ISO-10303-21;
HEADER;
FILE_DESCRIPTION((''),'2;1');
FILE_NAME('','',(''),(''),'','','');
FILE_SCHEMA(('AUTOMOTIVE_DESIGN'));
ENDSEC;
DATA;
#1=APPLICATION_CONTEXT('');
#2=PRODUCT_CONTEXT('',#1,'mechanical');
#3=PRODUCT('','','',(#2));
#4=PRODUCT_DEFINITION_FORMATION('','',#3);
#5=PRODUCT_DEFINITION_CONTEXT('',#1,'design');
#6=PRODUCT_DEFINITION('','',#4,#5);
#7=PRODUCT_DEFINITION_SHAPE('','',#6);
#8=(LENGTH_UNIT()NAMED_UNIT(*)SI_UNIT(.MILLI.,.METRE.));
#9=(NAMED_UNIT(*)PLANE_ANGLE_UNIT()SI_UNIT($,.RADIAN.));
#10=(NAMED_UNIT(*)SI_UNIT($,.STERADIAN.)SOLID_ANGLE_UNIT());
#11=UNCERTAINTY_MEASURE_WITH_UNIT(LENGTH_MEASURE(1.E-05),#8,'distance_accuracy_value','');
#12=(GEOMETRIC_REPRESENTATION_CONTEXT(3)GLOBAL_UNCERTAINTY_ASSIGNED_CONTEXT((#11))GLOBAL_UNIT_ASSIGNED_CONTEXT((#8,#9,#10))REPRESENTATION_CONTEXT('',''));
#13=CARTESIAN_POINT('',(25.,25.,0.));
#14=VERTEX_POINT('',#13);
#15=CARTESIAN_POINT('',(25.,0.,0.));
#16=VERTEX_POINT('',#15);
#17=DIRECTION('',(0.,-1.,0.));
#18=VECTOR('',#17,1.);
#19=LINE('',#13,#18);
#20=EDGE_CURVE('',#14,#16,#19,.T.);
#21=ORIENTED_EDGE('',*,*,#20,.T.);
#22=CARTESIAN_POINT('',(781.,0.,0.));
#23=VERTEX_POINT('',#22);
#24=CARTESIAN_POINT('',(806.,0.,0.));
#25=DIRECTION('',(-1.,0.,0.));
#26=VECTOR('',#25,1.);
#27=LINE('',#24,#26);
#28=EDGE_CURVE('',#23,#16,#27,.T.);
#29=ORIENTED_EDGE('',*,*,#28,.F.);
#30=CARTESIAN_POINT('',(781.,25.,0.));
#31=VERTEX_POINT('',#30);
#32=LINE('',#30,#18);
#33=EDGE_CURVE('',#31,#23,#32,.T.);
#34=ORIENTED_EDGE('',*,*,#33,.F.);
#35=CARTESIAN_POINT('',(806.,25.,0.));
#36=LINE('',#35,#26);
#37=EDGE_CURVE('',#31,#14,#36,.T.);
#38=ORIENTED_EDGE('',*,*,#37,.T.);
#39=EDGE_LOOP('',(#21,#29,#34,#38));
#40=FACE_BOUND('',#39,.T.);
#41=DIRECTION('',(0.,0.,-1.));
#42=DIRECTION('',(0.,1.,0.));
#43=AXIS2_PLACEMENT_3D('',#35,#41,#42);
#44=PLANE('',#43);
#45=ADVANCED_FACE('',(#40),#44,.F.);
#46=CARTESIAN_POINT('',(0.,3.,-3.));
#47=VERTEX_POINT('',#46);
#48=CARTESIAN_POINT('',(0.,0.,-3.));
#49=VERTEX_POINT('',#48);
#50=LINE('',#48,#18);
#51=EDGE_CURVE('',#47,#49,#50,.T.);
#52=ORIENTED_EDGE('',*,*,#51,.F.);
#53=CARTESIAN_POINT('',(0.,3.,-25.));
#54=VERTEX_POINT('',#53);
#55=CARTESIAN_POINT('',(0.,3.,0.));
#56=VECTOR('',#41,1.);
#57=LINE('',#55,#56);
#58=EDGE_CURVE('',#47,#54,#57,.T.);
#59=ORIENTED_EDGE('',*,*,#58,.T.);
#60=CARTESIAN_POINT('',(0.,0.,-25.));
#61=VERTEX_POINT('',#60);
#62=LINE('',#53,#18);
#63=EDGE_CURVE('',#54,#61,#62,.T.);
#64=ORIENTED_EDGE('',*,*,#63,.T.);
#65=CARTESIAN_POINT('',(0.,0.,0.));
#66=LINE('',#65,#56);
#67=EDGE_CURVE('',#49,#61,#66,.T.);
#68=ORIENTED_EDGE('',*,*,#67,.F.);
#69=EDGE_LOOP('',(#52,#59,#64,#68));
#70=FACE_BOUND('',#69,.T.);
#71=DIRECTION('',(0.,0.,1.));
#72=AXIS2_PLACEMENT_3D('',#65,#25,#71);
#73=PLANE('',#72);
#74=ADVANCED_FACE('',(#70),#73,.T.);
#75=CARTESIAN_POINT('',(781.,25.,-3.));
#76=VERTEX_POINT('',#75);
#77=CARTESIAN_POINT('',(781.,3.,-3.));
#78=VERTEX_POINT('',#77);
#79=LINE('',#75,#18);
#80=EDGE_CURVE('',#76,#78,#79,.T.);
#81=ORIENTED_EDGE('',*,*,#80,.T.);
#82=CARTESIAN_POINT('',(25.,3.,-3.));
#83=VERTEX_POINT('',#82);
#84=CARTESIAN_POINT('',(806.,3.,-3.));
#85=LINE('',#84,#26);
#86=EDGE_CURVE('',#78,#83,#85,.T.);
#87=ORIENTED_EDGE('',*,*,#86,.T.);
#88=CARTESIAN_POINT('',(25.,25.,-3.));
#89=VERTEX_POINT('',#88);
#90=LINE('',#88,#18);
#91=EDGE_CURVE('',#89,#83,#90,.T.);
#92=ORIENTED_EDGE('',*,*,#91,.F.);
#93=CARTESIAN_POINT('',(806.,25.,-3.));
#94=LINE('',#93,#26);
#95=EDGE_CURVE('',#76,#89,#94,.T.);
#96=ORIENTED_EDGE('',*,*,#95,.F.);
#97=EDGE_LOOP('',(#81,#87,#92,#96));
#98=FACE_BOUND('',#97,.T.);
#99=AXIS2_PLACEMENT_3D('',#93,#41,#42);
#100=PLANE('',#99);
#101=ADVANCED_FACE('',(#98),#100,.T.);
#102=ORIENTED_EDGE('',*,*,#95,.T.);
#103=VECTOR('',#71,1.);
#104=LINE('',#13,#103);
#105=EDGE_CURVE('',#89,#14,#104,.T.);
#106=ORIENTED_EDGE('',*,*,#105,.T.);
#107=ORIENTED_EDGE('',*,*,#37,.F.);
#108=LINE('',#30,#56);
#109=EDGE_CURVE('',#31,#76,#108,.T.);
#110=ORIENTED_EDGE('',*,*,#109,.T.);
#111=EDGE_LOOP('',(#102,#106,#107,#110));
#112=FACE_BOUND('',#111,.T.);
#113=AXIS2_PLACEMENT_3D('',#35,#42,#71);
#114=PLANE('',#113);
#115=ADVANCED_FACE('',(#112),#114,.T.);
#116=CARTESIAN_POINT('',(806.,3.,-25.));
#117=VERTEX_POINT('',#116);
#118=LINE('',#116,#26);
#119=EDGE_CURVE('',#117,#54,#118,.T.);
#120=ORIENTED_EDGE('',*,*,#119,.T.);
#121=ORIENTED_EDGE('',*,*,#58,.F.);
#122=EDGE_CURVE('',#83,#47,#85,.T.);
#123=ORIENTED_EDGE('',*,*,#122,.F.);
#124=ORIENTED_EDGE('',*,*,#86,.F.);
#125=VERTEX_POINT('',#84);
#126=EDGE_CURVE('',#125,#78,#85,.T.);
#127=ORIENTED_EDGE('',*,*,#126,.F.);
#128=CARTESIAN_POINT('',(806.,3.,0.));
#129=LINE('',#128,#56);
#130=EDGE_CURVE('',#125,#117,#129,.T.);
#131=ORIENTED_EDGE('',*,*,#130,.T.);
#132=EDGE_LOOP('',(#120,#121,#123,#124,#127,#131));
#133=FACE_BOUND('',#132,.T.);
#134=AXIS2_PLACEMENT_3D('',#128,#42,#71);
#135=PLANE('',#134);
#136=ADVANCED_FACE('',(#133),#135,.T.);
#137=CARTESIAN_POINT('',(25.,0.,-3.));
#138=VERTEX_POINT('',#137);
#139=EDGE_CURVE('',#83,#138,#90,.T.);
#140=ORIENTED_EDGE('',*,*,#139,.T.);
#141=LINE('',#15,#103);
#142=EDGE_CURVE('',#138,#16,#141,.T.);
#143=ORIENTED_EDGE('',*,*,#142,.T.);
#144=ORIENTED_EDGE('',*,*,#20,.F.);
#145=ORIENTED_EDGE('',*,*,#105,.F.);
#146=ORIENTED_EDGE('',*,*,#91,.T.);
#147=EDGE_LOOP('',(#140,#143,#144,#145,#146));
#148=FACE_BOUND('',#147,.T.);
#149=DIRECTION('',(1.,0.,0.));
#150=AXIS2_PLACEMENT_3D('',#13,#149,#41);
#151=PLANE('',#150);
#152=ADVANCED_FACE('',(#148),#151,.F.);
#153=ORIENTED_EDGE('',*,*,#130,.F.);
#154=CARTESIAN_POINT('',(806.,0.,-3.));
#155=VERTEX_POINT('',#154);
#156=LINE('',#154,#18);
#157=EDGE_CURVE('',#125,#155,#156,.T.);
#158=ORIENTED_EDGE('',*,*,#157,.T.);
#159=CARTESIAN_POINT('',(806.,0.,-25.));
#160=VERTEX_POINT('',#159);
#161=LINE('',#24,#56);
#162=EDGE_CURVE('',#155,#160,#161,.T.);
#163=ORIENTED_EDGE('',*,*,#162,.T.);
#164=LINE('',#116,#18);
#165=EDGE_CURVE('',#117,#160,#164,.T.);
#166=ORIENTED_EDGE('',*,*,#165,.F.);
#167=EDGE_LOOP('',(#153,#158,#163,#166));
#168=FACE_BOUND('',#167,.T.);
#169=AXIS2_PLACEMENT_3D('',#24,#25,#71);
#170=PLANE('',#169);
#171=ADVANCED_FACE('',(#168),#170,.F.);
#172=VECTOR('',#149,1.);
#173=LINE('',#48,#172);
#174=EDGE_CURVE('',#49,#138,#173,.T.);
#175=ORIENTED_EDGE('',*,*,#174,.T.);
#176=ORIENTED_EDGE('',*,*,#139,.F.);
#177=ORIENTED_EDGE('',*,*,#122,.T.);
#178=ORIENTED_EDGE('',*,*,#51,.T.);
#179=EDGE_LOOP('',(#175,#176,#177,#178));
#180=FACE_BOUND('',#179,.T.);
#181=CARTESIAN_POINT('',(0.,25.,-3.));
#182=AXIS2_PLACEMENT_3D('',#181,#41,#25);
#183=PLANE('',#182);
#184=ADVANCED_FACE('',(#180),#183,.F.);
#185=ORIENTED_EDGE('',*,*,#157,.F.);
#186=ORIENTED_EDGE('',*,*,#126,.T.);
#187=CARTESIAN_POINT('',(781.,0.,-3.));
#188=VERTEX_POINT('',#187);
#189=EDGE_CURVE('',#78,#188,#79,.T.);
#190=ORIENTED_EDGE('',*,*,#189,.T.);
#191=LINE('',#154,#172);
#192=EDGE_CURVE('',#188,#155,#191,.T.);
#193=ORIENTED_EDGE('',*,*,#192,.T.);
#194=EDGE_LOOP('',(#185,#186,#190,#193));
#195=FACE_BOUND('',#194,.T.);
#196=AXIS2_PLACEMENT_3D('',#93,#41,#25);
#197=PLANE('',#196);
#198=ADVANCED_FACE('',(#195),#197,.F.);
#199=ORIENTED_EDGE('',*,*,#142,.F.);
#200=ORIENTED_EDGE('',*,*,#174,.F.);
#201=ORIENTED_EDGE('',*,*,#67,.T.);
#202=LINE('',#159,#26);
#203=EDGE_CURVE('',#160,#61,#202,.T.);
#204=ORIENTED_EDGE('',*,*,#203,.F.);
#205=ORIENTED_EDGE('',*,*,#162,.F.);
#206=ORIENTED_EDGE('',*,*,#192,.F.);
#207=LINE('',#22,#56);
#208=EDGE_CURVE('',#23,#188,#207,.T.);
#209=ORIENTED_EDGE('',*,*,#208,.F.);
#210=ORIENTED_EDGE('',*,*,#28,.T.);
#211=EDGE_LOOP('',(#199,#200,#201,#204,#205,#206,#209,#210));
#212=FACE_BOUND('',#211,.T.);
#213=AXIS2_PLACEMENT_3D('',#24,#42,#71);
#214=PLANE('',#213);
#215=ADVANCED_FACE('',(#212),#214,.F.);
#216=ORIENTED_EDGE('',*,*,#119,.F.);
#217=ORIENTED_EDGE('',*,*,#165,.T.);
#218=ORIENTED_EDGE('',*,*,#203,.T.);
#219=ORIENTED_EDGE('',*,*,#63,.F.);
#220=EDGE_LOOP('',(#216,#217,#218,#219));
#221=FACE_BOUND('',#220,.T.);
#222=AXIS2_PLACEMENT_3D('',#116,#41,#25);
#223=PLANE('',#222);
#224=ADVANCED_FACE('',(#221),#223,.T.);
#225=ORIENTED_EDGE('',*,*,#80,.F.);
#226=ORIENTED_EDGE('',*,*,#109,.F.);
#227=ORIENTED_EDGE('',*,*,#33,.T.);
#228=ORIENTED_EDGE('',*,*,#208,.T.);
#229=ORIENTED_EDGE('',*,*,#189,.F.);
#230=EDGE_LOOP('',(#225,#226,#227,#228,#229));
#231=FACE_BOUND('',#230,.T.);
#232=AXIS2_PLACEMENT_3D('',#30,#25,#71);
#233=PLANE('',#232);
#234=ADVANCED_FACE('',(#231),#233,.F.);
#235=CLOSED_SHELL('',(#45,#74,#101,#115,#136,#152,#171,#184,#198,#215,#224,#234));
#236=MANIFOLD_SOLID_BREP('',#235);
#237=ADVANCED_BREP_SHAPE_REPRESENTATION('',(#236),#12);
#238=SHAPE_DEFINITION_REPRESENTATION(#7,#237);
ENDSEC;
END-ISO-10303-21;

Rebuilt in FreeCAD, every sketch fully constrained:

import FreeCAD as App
import Part
import Sketcher


def add_polygon(sketch, points):
    """Adds a closed chain of lines whose ends are joined by coincident constraints."""
    first, n = sketch.GeometryCount, len(points)
    for a, b in zip(points, points[1:] + points[:1]):
        sketch.addGeometry(Part.LineSegment(App.Vector(*a, 0), App.Vector(*b, 0)), False)
    for i in range(n):
        sketch.addConstraint(Sketcher.Constraint("Coincident", first + i, 2, first + (i + 1) % n, 1))

doc = App.newDocument("Part")
body = doc.addObject("PartDesign::Body", "Body")

sketch1 = doc.addObject("Sketcher::SketchObject", "Sketch")
body.addObject(sketch1)
sketch1.AttachmentSupport = (doc.YZ_Plane, [""])
sketch1.MapMode = "FlatFace"
add_polygon(sketch1, [(25, 0), (0, 0), (0, -25), (3, -25), (3, -3), (25, -3)])
sketch1.addConstraint(Sketcher.Constraint("Horizontal", 0))
sketch1.addConstraint(Sketcher.Constraint("Vertical", 1))
sketch1.addConstraint(Sketcher.Constraint("Horizontal", 2))
sketch1.addConstraint(Sketcher.Constraint("Vertical", 3))
sketch1.addConstraint(Sketcher.Constraint("Horizontal", 4))
sketch1.addConstraint(Sketcher.Constraint("Vertical", 5))
sketch1.addConstraint(Sketcher.Constraint("Coincident", 0, 2, -1, 1))
sketch1.addConstraint(Sketcher.Constraint("Equal", 0, 1))
sketch1.addConstraint(Sketcher.Constraint("Equal", 4, 3))
sketch1.addConstraint(Sketcher.Constraint("DistanceX", 0, 2, 0, 1, 25.0))
sketch1.addConstraint(Sketcher.Constraint("DistanceX", 2, 1, 2, 2, 3.0))
pad1 = doc.addObject("PartDesign::Pad", "Pad")
body.addObject(pad1)
pad1.Profile = sketch1
pad1.Length = 806

sketch2 = doc.addObject("Sketcher::SketchObject", "Sketch001")
body.addObject(sketch2)
sketch2.AttachmentSupport = (doc.XZ_Plane, [""])
sketch2.MapMode = "FlatFace"
add_polygon(sketch2, [(781, 0), (781, -3), (806, -3), (806, 0)])
add_polygon(sketch2, [(0, 0), (0, -3), (25, -3), (25, 0)])
sketch2.addConstraint(Sketcher.Constraint("Vertical", 0))
sketch2.addConstraint(Sketcher.Constraint("Horizontal", 1))
sketch2.addConstraint(Sketcher.Constraint("Vertical", 2))
sketch2.addConstraint(Sketcher.Constraint("Horizontal", 3))
sketch2.addConstraint(Sketcher.Constraint("Vertical", 4))
sketch2.addConstraint(Sketcher.Constraint("Horizontal", 5))
sketch2.addConstraint(Sketcher.Constraint("Vertical", 6))
sketch2.addConstraint(Sketcher.Constraint("Horizontal", 7))
sketch2.addConstraint(Sketcher.Constraint("Coincident", 7, 2, -1, 1))
sketch2.addConstraint(Sketcher.Constraint("PointOnObject", 2, 2, -1))
sketch2.addConstraint(Sketcher.Constraint("Horizontal", 1, 2, 4, 2))
sketch2.addConstraint(Sketcher.Constraint("Equal", 3, 5))
sketch2.addConstraint(Sketcher.Constraint("DistanceX", 1, 1, 1, 2, 25.0))
sketch2.addConstraint(Sketcher.Constraint("DistanceY", 0, 2, 0, 1, 3.0))
sketch2.addConstraint(Sketcher.Constraint("DistanceX", -1, 1, 0, 2, 781.0))
pocket1 = doc.addObject("PartDesign::Pocket", "Pocket")
body.addObject(pocket1)
pocket1.Profile = sketch2
pocket1.Type = "ThroughAll"

doc.recompute()
